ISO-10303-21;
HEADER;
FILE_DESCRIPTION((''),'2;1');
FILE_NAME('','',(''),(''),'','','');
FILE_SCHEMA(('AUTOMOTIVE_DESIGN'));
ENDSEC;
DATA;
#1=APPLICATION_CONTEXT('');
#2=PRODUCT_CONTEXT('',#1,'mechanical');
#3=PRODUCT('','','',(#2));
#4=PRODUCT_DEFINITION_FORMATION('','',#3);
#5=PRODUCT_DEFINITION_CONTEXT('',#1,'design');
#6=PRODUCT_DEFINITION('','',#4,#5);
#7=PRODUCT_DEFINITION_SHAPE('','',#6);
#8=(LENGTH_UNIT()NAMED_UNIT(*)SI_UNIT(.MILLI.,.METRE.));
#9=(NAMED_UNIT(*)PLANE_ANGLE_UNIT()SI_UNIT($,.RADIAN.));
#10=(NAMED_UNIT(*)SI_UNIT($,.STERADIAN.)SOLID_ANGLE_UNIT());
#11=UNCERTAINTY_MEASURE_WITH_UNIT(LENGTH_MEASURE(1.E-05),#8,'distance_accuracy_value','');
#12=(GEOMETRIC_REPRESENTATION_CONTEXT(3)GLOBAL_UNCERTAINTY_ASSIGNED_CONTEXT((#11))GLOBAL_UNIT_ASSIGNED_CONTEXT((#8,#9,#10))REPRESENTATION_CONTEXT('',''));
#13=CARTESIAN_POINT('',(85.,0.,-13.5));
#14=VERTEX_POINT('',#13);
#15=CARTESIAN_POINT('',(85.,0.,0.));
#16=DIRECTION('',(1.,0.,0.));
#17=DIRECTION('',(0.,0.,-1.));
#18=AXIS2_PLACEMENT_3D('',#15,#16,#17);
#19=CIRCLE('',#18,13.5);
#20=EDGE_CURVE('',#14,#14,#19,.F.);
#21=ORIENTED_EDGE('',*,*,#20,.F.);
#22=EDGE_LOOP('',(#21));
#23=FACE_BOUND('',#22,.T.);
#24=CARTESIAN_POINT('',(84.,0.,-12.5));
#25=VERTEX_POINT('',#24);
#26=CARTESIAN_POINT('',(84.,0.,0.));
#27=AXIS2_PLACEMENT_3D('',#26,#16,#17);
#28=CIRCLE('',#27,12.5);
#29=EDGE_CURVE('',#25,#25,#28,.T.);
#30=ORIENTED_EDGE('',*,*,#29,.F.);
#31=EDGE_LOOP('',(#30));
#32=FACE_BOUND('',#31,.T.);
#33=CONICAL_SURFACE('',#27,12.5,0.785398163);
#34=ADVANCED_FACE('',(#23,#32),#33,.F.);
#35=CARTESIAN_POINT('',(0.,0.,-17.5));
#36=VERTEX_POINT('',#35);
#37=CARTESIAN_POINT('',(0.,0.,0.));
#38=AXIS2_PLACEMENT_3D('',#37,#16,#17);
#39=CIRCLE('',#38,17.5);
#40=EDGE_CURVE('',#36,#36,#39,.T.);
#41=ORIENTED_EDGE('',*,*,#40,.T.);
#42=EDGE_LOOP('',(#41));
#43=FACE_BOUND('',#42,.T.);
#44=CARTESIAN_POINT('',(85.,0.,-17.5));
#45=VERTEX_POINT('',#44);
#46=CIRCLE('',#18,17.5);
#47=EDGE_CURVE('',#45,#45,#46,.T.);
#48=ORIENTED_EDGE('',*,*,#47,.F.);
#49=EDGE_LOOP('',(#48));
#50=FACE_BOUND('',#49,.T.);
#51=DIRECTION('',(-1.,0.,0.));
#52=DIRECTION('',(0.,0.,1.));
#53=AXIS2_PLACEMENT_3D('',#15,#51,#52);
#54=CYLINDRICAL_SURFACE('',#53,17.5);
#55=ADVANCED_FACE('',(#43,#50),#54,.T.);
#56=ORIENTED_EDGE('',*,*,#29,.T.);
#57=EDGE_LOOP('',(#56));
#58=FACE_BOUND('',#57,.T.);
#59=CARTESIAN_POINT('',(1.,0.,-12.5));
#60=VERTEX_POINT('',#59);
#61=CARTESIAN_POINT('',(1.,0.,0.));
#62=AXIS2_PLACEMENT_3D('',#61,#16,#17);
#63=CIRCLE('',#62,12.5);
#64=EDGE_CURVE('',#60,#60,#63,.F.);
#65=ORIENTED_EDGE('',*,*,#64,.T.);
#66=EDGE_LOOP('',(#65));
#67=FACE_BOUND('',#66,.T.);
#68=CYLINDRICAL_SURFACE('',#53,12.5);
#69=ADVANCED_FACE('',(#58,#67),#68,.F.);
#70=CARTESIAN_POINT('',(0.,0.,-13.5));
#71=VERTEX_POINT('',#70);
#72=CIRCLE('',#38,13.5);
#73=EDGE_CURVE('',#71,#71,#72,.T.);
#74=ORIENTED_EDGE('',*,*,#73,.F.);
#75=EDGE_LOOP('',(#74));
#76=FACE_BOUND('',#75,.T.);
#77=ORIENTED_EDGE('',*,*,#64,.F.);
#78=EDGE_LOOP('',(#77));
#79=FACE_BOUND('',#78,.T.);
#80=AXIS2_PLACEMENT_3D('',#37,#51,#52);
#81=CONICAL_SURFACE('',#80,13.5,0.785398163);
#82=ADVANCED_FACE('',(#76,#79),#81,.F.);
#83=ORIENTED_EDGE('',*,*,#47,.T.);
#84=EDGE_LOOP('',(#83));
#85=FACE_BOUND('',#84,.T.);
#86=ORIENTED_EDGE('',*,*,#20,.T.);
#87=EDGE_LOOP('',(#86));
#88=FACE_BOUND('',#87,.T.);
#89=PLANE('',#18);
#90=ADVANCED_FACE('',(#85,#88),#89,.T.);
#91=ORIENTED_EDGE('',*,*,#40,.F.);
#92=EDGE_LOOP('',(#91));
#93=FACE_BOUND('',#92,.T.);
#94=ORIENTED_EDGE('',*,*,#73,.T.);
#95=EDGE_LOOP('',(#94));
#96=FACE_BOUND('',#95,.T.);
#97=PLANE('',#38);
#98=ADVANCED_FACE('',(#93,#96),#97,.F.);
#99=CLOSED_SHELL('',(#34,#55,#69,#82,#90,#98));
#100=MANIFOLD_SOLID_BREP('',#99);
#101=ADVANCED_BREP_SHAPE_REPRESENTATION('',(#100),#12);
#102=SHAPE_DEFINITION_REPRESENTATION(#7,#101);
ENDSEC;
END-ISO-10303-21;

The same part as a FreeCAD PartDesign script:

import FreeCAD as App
import Part
import Sketcher
from FreeCAD import Vector
Q = App.Units.Quantity


def edges_at(feature, points):
    """Names of the edges that pass closest to the given points."""
    edges = feature.Shape.Edges
    near = lambda p: min(range(len(edges)), key=lambda i: edges[i].distToShape(Part.Vertex(*p))[0])
    return sorted({f"Edge{near(p) + 1}" for p in points})

doc = App.newDocument("Part")
body = doc.addObject("PartDesign::Body", "Body")

sketch1 = body.newObject("Sketcher::SketchObject", "Sketch")
sketch1.AttachmentSupport = (doc.getObject("YZ_Plane"), [""])
sketch1.MapMode = "FlatFace"
sketch1.addGeometry([
    Part.Circle(Vector(0, 0, 0), Vector(0, 0, 1), 18),
    Part.Circle(Vector(0, 0, 0), Vector(0, 0, 1), 12),
], False)
sketch1.addConstraint([
    Sketcher.Constraint("Coincident", 0, 3, -1, 1),
    Sketcher.Constraint("Coincident", 1, 3, -1, 1),
    Sketcher.Constraint("Diameter", 0, Q("35 mm")),
    Sketcher.Constraint("Diameter", 1, Q("25 mm")),
])
pad1 = body.newObject("PartDesign::Pad", "Pad")
pad1.Profile = sketch1
pad1.Length = 85
doc.recompute()

chamfer = body.newObject("PartDesign::Chamfer", "Chamfer")
chamfer.Base = (pad1, edges_at(pad1, [(0, 0, 12.5), (85, 0, 12.5)]))
chamfer.Size = 1

doc.recompute()
